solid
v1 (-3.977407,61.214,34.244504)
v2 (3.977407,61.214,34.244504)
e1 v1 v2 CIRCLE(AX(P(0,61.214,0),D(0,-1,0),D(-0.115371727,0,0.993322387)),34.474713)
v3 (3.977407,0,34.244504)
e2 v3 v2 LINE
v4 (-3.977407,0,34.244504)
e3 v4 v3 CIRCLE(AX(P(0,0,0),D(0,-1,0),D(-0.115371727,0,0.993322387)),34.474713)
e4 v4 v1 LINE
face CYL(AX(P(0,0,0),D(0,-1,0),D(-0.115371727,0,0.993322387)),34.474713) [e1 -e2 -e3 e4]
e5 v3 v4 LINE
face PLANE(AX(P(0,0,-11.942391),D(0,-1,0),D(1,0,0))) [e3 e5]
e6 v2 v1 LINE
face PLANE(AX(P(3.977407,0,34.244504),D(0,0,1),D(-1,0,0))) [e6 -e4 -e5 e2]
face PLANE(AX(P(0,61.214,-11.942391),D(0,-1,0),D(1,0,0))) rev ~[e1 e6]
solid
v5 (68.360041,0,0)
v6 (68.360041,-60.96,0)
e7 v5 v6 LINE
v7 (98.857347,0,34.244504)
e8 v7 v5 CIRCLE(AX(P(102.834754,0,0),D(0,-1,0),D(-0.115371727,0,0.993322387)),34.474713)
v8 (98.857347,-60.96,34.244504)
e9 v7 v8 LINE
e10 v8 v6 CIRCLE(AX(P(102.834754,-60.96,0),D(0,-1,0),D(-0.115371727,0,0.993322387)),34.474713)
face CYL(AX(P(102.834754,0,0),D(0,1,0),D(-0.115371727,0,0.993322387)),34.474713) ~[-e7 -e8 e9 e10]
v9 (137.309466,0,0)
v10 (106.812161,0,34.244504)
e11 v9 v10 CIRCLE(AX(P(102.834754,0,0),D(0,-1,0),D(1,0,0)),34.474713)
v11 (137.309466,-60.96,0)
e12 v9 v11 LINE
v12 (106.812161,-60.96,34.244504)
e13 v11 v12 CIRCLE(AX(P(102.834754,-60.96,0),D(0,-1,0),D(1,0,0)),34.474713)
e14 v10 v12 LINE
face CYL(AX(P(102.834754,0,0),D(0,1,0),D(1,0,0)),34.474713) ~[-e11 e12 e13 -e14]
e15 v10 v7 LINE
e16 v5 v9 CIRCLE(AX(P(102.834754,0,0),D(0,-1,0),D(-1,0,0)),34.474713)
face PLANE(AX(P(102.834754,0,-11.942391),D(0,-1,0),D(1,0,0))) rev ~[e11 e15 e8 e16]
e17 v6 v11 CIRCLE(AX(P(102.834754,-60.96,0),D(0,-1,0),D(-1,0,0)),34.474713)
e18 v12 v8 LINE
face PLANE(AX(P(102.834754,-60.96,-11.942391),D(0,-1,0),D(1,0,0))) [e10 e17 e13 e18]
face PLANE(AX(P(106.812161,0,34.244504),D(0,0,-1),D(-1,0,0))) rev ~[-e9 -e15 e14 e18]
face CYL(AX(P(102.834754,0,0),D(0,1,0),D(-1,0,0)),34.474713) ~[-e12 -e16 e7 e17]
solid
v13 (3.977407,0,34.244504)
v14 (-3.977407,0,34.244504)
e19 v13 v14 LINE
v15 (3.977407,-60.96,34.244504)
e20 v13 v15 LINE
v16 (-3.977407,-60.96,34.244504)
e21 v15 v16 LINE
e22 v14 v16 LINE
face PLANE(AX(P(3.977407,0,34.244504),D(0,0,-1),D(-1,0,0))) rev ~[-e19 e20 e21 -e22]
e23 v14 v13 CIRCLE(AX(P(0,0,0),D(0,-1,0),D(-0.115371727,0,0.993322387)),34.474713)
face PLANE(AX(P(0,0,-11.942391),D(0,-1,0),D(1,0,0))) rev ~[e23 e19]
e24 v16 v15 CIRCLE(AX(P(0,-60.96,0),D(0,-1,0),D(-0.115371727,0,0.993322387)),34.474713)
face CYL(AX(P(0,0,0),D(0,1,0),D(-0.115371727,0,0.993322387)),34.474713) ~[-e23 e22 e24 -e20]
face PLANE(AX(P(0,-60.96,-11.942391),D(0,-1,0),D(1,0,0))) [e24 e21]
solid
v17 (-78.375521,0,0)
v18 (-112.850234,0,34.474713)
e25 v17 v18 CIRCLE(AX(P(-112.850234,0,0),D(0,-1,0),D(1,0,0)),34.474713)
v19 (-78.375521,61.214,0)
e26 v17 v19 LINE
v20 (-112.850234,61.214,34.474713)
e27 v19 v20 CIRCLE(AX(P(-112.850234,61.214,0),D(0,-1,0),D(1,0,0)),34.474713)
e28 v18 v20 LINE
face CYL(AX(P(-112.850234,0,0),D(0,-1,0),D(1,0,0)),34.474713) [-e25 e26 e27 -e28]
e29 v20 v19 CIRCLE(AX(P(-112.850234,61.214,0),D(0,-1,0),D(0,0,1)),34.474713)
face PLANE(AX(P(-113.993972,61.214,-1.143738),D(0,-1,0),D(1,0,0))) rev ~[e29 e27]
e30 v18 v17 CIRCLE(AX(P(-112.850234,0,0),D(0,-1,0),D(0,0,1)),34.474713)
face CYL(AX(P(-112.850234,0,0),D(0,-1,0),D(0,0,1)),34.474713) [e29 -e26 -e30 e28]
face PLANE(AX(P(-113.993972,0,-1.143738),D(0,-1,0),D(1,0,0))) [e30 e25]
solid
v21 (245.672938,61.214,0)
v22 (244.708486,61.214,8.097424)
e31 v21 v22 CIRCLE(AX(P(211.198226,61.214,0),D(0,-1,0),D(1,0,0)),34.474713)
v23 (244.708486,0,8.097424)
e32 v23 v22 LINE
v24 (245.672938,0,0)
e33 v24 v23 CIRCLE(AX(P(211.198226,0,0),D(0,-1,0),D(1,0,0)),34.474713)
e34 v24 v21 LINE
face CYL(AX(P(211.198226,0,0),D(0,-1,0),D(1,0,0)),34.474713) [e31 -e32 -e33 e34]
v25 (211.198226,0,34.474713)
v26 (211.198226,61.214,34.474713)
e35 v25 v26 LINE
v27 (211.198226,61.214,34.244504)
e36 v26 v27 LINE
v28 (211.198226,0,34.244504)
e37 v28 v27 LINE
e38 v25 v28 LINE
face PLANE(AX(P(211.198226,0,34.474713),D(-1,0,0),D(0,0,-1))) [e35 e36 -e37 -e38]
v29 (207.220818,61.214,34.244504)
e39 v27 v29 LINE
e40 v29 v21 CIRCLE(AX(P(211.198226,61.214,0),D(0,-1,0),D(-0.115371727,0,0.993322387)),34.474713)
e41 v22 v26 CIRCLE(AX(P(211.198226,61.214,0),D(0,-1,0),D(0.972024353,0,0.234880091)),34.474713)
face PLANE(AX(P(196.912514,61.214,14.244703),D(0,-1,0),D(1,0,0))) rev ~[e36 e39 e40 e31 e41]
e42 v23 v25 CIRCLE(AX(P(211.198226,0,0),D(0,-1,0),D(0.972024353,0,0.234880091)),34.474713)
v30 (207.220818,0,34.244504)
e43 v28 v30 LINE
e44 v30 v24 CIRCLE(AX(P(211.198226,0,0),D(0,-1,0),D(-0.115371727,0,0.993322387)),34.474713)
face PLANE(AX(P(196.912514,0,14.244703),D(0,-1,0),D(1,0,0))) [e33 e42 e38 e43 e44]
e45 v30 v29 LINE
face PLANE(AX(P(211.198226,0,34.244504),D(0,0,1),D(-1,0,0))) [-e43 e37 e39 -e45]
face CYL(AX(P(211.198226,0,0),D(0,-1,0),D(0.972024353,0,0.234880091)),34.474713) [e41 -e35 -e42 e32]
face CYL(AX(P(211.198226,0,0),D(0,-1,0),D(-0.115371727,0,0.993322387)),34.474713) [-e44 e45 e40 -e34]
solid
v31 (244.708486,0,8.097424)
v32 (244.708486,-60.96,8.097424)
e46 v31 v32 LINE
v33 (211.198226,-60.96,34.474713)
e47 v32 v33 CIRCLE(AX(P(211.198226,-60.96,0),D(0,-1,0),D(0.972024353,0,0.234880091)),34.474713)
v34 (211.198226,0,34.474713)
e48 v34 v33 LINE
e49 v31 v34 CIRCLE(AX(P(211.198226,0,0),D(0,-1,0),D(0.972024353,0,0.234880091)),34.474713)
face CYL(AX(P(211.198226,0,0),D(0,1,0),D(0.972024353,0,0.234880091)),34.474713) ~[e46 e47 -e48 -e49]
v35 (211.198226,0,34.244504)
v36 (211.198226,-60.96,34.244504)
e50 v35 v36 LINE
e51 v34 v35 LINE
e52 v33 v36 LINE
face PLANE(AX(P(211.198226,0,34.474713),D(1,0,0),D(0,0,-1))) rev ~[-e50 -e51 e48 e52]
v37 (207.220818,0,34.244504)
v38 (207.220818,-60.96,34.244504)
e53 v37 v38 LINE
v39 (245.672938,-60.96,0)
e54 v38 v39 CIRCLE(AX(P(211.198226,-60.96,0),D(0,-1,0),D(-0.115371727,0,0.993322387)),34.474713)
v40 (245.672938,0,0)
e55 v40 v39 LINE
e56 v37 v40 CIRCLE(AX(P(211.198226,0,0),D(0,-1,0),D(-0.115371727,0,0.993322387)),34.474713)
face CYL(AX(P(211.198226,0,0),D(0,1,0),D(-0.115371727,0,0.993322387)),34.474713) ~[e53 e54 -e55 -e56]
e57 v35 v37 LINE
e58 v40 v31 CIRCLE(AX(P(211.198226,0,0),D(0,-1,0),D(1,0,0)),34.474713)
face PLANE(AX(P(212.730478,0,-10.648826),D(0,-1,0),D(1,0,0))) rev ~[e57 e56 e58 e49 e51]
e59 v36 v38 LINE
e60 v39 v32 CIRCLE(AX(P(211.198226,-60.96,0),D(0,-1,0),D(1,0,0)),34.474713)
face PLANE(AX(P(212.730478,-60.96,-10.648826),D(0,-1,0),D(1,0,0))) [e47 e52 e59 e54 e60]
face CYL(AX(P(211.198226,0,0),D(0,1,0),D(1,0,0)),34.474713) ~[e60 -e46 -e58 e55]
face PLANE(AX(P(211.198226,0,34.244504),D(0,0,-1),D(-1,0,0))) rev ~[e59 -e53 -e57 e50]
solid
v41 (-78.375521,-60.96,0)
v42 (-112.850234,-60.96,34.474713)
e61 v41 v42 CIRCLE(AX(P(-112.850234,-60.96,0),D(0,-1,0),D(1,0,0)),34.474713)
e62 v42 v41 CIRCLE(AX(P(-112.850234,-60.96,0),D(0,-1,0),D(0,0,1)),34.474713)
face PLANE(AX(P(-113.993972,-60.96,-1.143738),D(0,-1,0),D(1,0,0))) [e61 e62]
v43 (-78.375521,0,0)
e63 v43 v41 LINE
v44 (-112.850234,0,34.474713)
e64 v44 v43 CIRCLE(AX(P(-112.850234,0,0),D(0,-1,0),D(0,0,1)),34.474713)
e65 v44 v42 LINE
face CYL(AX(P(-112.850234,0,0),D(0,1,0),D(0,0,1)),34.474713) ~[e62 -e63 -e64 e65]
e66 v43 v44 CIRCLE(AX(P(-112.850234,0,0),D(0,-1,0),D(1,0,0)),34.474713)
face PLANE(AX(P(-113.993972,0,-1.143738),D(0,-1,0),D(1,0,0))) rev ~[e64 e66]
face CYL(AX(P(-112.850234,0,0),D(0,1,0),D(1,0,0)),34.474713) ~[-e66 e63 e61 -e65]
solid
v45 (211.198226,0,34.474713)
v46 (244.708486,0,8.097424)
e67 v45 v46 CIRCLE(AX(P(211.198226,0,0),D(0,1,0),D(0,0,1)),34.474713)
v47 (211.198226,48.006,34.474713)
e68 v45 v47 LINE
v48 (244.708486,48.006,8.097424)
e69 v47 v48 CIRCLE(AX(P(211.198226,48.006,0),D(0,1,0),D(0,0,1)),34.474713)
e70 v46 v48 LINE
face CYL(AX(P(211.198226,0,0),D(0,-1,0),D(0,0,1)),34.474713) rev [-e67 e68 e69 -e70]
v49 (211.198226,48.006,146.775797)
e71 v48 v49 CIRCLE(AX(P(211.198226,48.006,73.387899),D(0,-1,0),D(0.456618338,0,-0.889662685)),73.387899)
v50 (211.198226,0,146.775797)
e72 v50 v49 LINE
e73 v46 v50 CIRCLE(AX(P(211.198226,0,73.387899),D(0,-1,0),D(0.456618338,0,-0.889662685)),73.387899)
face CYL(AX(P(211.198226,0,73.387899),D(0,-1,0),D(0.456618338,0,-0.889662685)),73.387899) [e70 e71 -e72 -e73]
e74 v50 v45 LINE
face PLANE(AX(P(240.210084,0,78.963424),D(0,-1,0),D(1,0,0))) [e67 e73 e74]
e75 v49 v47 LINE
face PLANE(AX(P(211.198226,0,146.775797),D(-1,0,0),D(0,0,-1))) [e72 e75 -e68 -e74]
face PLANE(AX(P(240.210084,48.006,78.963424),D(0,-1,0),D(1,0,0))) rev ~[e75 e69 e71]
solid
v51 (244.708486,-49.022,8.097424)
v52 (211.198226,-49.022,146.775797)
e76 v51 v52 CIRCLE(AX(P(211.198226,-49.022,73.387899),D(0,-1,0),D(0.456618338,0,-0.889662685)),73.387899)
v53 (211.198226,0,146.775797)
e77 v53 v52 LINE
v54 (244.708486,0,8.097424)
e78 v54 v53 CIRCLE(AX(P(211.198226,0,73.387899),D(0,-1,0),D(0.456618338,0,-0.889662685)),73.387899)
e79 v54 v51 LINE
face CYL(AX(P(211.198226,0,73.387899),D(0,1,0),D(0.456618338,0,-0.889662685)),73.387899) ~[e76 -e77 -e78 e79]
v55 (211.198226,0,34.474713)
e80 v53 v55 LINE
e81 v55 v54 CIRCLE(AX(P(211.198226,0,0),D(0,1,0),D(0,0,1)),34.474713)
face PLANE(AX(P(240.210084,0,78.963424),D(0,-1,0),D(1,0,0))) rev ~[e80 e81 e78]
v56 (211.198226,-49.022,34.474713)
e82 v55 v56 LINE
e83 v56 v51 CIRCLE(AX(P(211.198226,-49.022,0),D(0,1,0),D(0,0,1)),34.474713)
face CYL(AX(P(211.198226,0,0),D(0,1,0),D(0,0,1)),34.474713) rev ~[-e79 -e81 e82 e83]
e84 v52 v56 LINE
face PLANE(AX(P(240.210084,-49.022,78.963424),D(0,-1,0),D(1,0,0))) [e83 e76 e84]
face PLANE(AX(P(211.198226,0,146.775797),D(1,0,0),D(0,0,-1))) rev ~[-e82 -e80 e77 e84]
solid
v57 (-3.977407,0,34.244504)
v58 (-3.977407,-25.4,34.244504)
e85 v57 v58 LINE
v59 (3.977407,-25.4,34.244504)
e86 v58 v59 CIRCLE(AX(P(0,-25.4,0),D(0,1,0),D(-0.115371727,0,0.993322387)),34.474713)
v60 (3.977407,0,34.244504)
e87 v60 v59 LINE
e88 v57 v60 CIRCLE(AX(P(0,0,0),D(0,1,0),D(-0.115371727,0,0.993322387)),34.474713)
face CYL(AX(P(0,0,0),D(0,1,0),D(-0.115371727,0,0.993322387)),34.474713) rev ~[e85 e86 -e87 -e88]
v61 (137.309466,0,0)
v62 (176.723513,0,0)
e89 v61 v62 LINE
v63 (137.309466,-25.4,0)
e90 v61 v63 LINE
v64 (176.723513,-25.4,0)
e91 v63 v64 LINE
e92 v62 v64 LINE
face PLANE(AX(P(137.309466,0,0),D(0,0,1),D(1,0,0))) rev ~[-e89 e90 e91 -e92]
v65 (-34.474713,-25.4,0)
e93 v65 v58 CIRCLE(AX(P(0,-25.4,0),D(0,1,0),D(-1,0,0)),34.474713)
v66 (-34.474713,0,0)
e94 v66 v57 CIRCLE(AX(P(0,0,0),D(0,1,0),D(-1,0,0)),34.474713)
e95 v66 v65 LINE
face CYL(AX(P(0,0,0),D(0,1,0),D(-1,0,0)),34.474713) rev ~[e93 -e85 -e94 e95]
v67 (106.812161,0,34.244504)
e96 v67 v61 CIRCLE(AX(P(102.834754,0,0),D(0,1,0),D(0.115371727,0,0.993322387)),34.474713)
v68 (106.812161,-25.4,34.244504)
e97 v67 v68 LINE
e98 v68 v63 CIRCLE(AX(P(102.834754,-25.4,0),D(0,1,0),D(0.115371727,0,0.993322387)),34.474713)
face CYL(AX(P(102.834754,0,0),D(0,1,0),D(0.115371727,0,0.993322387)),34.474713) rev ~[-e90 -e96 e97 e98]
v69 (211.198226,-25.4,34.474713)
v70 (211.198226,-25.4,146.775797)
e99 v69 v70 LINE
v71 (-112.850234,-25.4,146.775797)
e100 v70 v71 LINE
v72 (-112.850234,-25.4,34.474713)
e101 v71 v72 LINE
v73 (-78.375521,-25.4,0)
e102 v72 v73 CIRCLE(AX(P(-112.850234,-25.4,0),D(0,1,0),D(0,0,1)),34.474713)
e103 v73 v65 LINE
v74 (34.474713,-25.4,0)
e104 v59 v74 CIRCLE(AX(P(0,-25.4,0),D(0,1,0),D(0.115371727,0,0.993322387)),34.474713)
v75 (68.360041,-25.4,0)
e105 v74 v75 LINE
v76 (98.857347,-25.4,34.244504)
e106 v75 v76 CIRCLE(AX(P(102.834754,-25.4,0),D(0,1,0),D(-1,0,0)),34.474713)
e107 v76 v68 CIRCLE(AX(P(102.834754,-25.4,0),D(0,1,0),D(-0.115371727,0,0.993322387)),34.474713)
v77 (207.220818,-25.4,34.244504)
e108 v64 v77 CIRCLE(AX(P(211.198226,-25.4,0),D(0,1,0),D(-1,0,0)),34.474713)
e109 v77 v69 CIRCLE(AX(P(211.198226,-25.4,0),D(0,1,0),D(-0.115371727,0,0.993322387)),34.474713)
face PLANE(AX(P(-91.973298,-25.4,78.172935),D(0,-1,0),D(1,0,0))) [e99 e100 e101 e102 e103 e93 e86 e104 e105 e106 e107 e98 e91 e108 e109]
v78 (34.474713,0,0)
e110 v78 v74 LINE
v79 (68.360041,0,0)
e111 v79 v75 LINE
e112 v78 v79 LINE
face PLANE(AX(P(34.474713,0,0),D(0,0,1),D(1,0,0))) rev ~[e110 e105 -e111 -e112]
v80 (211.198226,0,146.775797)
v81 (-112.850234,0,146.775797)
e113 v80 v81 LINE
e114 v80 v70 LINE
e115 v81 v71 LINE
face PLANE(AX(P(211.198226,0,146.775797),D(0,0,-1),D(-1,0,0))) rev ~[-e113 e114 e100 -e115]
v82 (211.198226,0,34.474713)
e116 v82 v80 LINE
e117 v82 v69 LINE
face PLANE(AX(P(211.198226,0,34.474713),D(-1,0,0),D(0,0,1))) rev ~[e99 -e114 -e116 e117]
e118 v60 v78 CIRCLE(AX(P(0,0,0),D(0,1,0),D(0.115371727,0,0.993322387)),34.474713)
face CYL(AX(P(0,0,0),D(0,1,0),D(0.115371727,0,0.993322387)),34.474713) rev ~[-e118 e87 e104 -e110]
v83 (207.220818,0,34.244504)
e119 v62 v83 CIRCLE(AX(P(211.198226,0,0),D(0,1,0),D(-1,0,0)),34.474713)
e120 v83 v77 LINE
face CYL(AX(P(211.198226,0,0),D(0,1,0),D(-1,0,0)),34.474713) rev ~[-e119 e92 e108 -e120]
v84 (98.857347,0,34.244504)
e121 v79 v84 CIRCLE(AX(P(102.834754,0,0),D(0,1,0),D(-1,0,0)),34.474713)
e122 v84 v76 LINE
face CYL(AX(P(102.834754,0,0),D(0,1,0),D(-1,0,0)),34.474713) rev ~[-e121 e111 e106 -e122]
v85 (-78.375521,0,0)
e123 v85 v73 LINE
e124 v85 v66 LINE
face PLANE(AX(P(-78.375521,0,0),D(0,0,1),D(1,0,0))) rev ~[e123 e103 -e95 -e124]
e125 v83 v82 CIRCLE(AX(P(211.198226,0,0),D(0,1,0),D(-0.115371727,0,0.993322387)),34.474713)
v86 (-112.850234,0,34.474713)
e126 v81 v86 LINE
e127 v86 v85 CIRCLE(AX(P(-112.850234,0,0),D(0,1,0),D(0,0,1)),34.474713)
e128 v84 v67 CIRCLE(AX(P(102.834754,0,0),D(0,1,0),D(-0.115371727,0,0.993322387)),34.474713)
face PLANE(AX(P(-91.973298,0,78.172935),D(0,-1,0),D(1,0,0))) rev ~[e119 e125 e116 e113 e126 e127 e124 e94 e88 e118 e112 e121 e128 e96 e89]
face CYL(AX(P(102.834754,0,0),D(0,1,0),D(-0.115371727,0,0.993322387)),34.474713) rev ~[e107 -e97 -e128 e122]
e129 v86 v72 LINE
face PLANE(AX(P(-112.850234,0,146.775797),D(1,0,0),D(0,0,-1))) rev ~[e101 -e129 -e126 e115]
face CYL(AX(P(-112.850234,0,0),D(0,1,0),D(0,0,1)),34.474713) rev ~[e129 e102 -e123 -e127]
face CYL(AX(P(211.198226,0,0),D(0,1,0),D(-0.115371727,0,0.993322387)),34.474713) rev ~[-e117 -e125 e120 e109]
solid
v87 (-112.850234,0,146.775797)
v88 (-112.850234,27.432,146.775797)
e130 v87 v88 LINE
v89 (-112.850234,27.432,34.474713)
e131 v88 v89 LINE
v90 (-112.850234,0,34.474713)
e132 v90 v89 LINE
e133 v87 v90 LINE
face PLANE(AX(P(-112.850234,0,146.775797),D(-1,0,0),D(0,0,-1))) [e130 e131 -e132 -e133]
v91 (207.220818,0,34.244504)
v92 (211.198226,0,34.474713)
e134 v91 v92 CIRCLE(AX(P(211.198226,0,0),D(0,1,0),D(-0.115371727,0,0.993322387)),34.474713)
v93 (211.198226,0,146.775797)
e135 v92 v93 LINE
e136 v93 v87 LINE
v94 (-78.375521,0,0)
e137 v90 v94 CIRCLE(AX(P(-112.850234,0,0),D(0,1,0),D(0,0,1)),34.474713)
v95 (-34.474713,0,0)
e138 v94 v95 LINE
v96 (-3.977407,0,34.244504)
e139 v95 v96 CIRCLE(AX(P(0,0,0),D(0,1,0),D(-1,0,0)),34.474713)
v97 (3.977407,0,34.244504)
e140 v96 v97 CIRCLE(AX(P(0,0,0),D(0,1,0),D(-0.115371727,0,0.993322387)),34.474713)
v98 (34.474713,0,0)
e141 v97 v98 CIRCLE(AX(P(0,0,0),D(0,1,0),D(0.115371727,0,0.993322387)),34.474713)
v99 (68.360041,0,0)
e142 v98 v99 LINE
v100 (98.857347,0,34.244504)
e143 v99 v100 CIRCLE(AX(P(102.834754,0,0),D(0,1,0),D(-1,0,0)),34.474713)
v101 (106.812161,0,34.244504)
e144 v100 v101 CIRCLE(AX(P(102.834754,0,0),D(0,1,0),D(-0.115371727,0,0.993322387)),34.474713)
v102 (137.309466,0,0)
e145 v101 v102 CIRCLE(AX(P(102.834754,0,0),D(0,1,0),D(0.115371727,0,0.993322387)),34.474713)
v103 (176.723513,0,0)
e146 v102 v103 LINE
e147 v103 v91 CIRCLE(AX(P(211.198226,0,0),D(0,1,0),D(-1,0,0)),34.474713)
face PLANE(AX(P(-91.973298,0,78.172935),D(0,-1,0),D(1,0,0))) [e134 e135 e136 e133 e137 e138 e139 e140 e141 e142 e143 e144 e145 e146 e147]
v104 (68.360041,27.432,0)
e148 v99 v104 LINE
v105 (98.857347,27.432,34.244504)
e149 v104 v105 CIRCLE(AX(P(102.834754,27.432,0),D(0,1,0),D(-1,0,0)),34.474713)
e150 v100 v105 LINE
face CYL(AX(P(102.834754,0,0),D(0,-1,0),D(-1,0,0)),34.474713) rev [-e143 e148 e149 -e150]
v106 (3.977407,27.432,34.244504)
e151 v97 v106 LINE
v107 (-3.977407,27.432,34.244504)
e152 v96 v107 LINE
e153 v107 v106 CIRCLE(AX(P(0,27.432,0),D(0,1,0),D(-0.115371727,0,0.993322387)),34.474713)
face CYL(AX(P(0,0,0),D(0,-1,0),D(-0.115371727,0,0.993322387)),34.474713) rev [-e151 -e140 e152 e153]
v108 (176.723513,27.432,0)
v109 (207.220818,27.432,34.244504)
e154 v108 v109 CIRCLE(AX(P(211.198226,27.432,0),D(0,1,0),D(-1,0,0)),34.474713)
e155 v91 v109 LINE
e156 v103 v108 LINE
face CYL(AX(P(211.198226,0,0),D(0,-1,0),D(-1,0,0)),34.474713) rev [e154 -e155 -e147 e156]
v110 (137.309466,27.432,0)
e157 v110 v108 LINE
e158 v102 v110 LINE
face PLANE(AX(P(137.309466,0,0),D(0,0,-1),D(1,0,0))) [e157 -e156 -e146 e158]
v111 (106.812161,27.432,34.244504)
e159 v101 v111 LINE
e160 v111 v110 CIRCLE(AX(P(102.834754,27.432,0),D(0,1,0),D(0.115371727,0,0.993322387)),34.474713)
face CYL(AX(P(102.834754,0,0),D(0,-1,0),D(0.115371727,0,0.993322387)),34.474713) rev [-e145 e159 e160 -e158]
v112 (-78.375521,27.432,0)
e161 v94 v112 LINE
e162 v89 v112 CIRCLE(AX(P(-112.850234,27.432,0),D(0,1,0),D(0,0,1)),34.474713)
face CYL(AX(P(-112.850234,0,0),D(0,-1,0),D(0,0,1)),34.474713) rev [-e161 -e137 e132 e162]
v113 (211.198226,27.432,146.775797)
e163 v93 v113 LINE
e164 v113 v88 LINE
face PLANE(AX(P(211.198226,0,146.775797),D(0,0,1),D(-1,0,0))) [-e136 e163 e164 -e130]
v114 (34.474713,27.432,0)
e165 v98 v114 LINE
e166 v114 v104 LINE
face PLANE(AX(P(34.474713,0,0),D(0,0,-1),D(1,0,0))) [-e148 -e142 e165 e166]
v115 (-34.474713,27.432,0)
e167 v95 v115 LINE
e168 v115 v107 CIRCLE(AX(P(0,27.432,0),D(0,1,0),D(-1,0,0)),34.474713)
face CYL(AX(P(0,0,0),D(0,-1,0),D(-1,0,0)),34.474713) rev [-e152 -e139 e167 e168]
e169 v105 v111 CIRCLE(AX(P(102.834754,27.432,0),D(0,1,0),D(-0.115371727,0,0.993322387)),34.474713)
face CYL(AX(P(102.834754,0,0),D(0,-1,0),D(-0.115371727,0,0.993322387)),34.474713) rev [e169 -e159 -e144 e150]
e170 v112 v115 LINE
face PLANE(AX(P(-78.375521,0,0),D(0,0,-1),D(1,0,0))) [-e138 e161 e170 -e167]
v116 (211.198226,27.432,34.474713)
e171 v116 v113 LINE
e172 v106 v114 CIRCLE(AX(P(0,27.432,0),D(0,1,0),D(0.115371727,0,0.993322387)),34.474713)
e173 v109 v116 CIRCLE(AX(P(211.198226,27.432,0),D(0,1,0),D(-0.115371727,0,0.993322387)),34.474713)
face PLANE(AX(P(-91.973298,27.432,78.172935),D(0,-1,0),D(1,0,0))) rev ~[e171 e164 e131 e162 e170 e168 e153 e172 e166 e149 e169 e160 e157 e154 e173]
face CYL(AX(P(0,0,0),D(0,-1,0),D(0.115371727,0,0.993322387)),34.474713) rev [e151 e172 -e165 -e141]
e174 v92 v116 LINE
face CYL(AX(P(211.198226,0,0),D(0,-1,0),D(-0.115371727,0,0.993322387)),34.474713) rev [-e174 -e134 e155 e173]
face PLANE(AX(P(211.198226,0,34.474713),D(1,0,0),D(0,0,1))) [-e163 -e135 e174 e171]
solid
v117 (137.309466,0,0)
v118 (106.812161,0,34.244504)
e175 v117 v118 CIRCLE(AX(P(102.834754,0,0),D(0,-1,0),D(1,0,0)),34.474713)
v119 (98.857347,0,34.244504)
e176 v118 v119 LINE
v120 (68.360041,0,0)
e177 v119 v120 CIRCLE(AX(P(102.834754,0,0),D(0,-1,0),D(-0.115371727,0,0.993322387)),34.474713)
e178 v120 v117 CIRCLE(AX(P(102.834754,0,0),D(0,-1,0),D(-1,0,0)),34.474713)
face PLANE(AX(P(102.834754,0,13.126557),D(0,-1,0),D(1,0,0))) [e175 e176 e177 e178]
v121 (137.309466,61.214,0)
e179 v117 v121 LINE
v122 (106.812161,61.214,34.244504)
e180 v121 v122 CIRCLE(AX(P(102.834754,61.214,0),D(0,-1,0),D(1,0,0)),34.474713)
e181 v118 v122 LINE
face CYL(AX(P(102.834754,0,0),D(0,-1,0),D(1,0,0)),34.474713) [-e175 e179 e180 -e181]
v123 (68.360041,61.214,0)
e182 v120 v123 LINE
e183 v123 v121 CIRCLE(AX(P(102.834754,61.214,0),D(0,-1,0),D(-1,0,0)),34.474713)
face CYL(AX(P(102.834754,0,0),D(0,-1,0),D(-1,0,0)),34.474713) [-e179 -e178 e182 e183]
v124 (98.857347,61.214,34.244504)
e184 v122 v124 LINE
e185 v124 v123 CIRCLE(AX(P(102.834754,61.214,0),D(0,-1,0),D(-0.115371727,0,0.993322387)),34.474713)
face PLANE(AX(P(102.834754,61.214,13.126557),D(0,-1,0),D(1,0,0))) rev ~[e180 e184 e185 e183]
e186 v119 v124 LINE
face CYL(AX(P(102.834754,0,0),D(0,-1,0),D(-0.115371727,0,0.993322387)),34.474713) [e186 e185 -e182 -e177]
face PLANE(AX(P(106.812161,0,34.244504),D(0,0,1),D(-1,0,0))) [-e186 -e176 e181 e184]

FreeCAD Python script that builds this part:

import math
import FreeCAD as App
import Part
import Sketcher
from FreeCAD import Vector
Q = App.Units.Quantity

doc = App.newDocument("Part")
body = doc.addObject("PartDesign::Body", "Body")

sketch1 = body.newObject("Sketcher::SketchObject", "Sketch")
sketch1.AttachmentSupport = (doc.getObject("XZ_Plane"), [""])
sketch1.MapMode = "FlatFace"
sketch1.addGeometry([
    Part.ArcOfCircle(Part.Circle(Vector(-113, 0, 0), Vector(0, 0, 1), 34), math.radians(90), math.radians(360)),
    Part.ArcOfCircle(Part.Circle(Vector(-113, 0, 0), Vector(0, 0, 1), 34), math.radians(0), math.radians(90)),
], False)
sketch1.addConstraint([
    Sketcher.Constraint("Tangent", 0, 1, 1, 2),
    Sketcher.Constraint("Coincident", 1, 1, 0, 2),
    Sketcher.Constraint("PointOnObject", 0, 3, -1),
    Sketcher.Constraint("PointOnObject", 1, 1, -1),
    Sketcher.Constraint("Vertical", 1, 3, 0, 1),
    Sketcher.Constraint("Radius", 0, 34.474713),
    Sketcher.Constraint("DistanceX", 1, 1, -1, 1, 78.375521),
])
pad1 = body.newObject("PartDesign::Pad", "Pad")
pad1.Profile = sketch1
pad1.Length = Q("2.4 in")
body2 = doc.addObject("PartDesign::Body", "Body001")

sketch2 = body2.newObject("Sketcher::SketchObject", "Sketch001")
sketch2.AttachmentSupport = (doc.getObject("XZ_Plane001"), [""])
sketch2.MapMode = "FlatFace"
sketch2.addGeometry([
    Part.LineSegment(Vector(4, 34, 0), Vector(-4, 34, 0)),
    Part.ArcOfCircle(Part.Circle(Vector(0, 0, 0), Vector(0, 0, 1), 34), math.radians(97), math.radians(443)),
], False)
sketch2.addConstraint([
    Sketcher.Constraint("Coincident", 0, 1, 1, 2),
    Sketcher.Constraint("Coincident", 1, 1, 0, 2),
    Sketcher.Constraint("Horizontal", 0),
    Sketcher.Constraint("Coincident", 1, 3, -1, 1),
    Sketcher.Constraint("Radius", 1, 34.474713),
    Sketcher.Constraint("DistanceX", 0, 2, 0, 1, 7.954814),
])
pad2 = body2.newObject("PartDesign::Pad", "Pad001")
pad2.Profile = sketch2
pad2.Length = Q("2.4 in")
body3 = doc.addObject("PartDesign::Body", "Body002")

sketch3 = body3.newObject("Sketcher::SketchObject", "Sketch002")
sketch3.AttachmentSupport = (doc.getObject("XZ_Plane002"), [""])
sketch3.MapMode = "FlatFace"
sketch3.addGeometry([
    Part.ArcOfCircle(Part.Circle(Vector(103, 0, 0), Vector(0, 0, 1), 34), math.radians(180), math.radians(360)),
    Part.ArcOfCircle(Part.Circle(Vector(103, 0, 0), Vector(0, 0, 1), 34), math.radians(0), math.radians(83)),
    Part.LineSegment(Vector(107, 34, 0), Vector(99, 34, 0)),
    Part.ArcOfCircle(Part.Circle(Vector(103, 0, 0), Vector(0, 0, 1), 34), math.radians(97), math.radians(180)),
], False)
sketch3.addConstraint([
    Sketcher.Constraint("Tangent", 0, 2, 1, 1),
    Sketcher.Constraint("Coincident", 1, 2, 2, 1),
    Sketcher.Constraint("Coincident", 2, 2, 3, 1),
    Sketcher.Constraint("Tangent", 3, 2, 0, 1),
    Sketcher.Constraint("Horizontal", 2),
    Sketcher.Constraint("Equal", 0, 1),
    Sketcher.Constraint("Equal", 1, 3),
    Sketcher.Constraint("PointOnObject", 0, 3, -1),
    Sketcher.Constraint("PointOnObject", 0, 2, -1),
    Sketcher.Constraint("PointOnObject", 3, 2, -1),
    Sketcher.Constraint("Radius", 0, 34.474713),
    Sketcher.Constraint("DistanceX", 2, 2, 2, 1, 7.954814),
    Sketcher.Constraint("DistanceX", -1, 1, 1, 2, 106.812161),
])
pad3 = body3.newObject("PartDesign::Pad", "Pad002")
pad3.Profile = sketch3
pad3.Length = Q("2.4 in")
body4 = doc.addObject("PartDesign::Body", "Body003")

sketch4 = body4.newObject("Sketcher::SketchObject", "Sketch003")
sketch4.AttachmentSupport = (doc.getObject("XZ_Plane003"), [""])
sketch4.MapMode = "FlatFace"
sketch4.addGeometry([
    Part.ArcOfCircle(Part.Circle(Vector(211.2, 0, 0), Vector(0, 0, 1), 34.47), math.radians(0), math.radians(13.58)),
    Part.ArcOfCircle(Part.Circle(Vector(211.2, 0, 0), Vector(0, 0, 1), 34.47), math.radians(14), math.radians(90)),
    Part.LineSegment(Vector(211.2, 34.47, 0), Vector(211.2, 34.24, 0)),
    Part.LineSegment(Vector(211.2, 34.24, 0), Vector(207.22, 34.24, 0)),
    Part.ArcOfCircle(Part.Circle(Vector(211.2, 0, 0), Vector(0, 0, 1), 34.47), math.radians(97), math.radians(360)),
], False)
sketch4.addConstraint([
    Sketcher.Constraint("Tangent", 0, 2, 1, 1),
    Sketcher.Constraint("Coincident", 1, 2, 2, 1),
    Sketcher.Constraint("Coincident", 2, 2, 3, 1),
    Sketcher.Constraint("Coincident", 3, 2, 4, 1),
    Sketcher.Constraint("Tangent", 4, 2, 0, 1),
    Sketcher.Constraint("Vertical", 2),
    Sketcher.Constraint("Horizontal", 3),
    Sketcher.Constraint("Equal", 0, 1),
    Sketcher.Constraint("Equal", 1, 4),
    Sketcher.Constraint("PointOnObject", 0, 3, -1),
    Sketcher.Constraint("PointOnObject", 4, 2, -1),
    Sketcher.Constraint("Vertical", 4, 3, 1, 2),
    Sketcher.Constraint("DistanceX", -1, 1, 3, 2, Q("8.1582999 in")),
    Sketcher.Constraint("Radius", 0, 34.474713),
    Sketcher.Constraint("DistanceY", 2, 2, 2, 1, 0.230209),
    Sketcher.Constraint("DistanceX", 0, 3, 0, 2, 33.51026),
])
pad4 = body4.newObject("PartDesign::Pad", "Pad003")
pad4.Profile = sketch4
pad4.Length = Q("2.4 in")
body5 = doc.addObject("PartDesign::Body", "Body004")

sketch5 = body5.newObject("Sketcher::SketchObject", "Sketch004")
sketch5.AttachmentSupport = (doc.getObject("XZ_Plane004"), [""])
sketch5.MapMode = "FlatFace"
sketch5.addGeometry([
    Part.ArcOfCircle(Part.Circle(Vector(-113, 0, 0), Vector(0, 0, 1), 34), math.radians(90), math.radians(360)),
    Part.ArcOfCircle(Part.Circle(Vector(-113, 0, 0), Vector(0, 0, 1), 34), math.radians(0), math.radians(90)),
], False)
sketch5.addConstraint([
    Sketcher.Constraint("Tangent", 0, 1, 1, 2),
    Sketcher.Constraint("Coincident", 1, 1, 0, 2),
    Sketcher.Constraint("PointOnObject", 0, 3, -1),
    Sketcher.Constraint("PointOnObject", 1, 1, -1),
    Sketcher.Constraint("Vertical", 1, 3, 0, 1),
    Sketcher.Constraint("Radius", 0, 34.474713),
    Sketcher.Constraint("DistanceX", 1, 1, -1, 1, 78.375521),
])
pad5 = body5.newObject("PartDesign::Pad", "Pad004")
pad5.Profile = sketch5
pad5.Length = Q("2.41 in")
pad5.Reversed = True
body6 = doc.addObject("PartDesign::Body", "Body005")

sketch6 = body6.newObject("Sketcher::SketchObject", "Sketch005")
sketch6.AttachmentSupport = (doc.getObject("XZ_Plane005"), [""])
sketch6.MapMode = "FlatFace"
sketch6.addGeometry([
    Part.LineSegment(Vector(4, 34, 0), Vector(-4, 34, 0)),
    Part.ArcOfCircle(Part.Circle(Vector(0, 0, 0), Vector(0, 0, 1), 34), math.radians(97), math.radians(443)),
], False)
sketch6.addConstraint([
    Sketcher.Constraint("Coincident", 0, 1, 1, 2),
    Sketcher.Constraint("Coincident", 1, 1, 0, 2),
    Sketcher.Constraint("Horizontal", 0),
    Sketcher.Constraint("Coincident", 1, 3, -1, 1),
    Sketcher.Constraint("Radius", 1, 34.474713),
    Sketcher.Constraint("DistanceX", 0, 2, 0, 1, 7.954814),
])
pad6 = body6.newObject("PartDesign::Pad", "Pad005")
pad6.Profile = sketch6
pad6.Length = Q("2.41 in")
pad6.Reversed = True
body7 = doc.addObject("PartDesign::Body", "Body006")

sketch7 = body7.newObject("Sketcher::SketchObject", "Sketch006")
sketch7.AttachmentSupport = (doc.getObject("XZ_Plane006"), [""])
sketch7.MapMode = "FlatFace"
sketch7.addGeometry([
    Part.ArcOfCircle(Part.Circle(Vector(103, 0, 0), Vector(0, 0, 1), 34), math.radians(97), math.radians(180)),
    Part.ArcOfCircle(Part.Circle(Vector(103, 0, 0), Vector(0, 0, 1), 34), math.radians(180), math.radians(360)),
    Part.ArcOfCircle(Part.Circle(Vector(103, 0, 0), Vector(0, 0, 1), 34), math.radians(0), math.radians(83)),
    Part.LineSegment(Vector(107, 34, 0), Vector(99, 34, 0)),
], False)
sketch7.addConstraint([
    Sketcher.Constraint("Tangent", 0, 2, 1, 1),
    Sketcher.Constraint("Tangent", 1, 2, 2, 1),
    Sketcher.Constraint("Coincident", 2, 2, 3, 1),
    Sketcher.Constraint("Coincident", 3, 2, 0, 1),
    Sketcher.Constraint("Horizontal", 3),
    Sketcher.Constraint("Equal", 0, 1),
    Sketcher.Constraint("Equal", 1, 2),
    Sketcher.Constraint("PointOnObject", 0, 3, -1),
    Sketcher.Constraint("PointOnObject", 0, 2, -1),
    Sketcher.Constraint("PointOnObject", 1, 2, -1),
    Sketcher.Constraint("Radius", 0, 34.474713),
    Sketcher.Constraint("DistanceX", 3, 2, 3, 1, 7.954814),
    Sketcher.Constraint("DistanceX", -1, 1, 0, 2, 68.360041),
])
pad7 = body7.newObject("PartDesign::Pad", "Pad006")
pad7.Profile = sketch7
pad7.Length = Q("2.41 in")
pad7.Reversed = True
body8 = doc.addObject("PartDesign::Body", "Body007")

sketch8 = body8.newObject("Sketcher::SketchObject", "Sketch007")
sketch8.AttachmentSupport = (doc.getObject("XZ_Plane007"), [""])
sketch8.MapMode = "FlatFace"
sketch8.addGeometry([
    Part.ArcOfCircle(Part.Circle(Vector(211.2, 0, 0), Vector(0, 0, 1), 34.47), math.radians(97), math.radians(360)),
    Part.ArcOfCircle(Part.Circle(Vector(211.2, 0, 0), Vector(0, 0, 1), 34.47), math.radians(0), math.radians(13.58)),
    Part.ArcOfCircle(Part.Circle(Vector(211.2, 0, 0), Vector(0, 0, 1), 34.47), math.radians(14), math.radians(90)),
    Part.LineSegment(Vector(211.2, 34.47, 0), Vector(211.2, 34.24, 0)),
    Part.LineSegment(Vector(211.2, 34.24, 0), Vector(207.22, 34.24, 0)),
], False)
sketch8.addConstraint([
    Sketcher.Constraint("Tangent", 0, 2, 1, 1),
    Sketcher.Constraint("Tangent", 1, 2, 2, 1),
    Sketcher.Constraint("Coincident", 2, 2, 3, 1),
    Sketcher.Constraint("Coincident", 3, 2, 4, 1),
    Sketcher.Constraint("Coincident", 4, 2, 0, 1),
    Sketcher.Constraint("Vertical", 3),
    Sketcher.Constraint("Horizontal", 4),
    Sketcher.Constraint("Coincident", 2, 3, 0, 3),
    Sketcher.Constraint("PointOnObject", 0, 3, -1),
    Sketcher.Constraint("PointOnObject", 0, 2, -1),
    Sketcher.Constraint("Vertical", 1, 3, 2, 2),
    Sketcher.Constraint("DistanceX", -1, 1, 4, 2, Q("8.1582999 in")),
    Sketcher.Constraint("Radius", 0, 34.474713),
    Sketcher.Constraint("DistanceY", 3, 2, 3, 1, 0.230209),
    Sketcher.Constraint("DistanceX", 1, 3, 1, 2, 33.51026),
])
pad8 = body8.newObject("PartDesign::Pad", "Pad007")
pad8.Profile = sketch8
pad8.Length = Q("2.41 in")
pad8.Reversed = True
body9 = doc.addObject("PartDesign::Body", "Body008")

sketch9 = body9.newObject("Sketcher::SketchObject", "Sketch008")
sketch9.AttachmentSupport = (doc.getObject("XZ_Plane008"), [""])
sketch9.MapMode = "FlatFace"
sketch9.addGeometry([
    Part.LineSegment(Vector(-78.4, 0, 0), Vector(-34.5, 0, 0)),
    Part.ArcOfCircle(Part.Circle(Vector(0, 0, 0), Vector(0, 0, 1), 34.5), math.radians(97), math.radians(180)),
    Part.ArcOfCircle(Part.Circle(Vector(0, 0, 0), Vector(0, 0, 1), 34.5), math.radians(83.37), math.radians(96.63)),
    Part.ArcOfCircle(Part.Circle(Vector(0, 0, 0), Vector(0, 0, 1), 34.5), math.radians(0), math.radians(83)),
    Part.LineSegment(Vector(34.5, 0, 0), Vector(68.4, 0, 0)),
    Part.ArcOfCircle(Part.Circle(Vector(102.8, 0, 0), Vector(0, 0, 1), 34.5), math.radians(97), math.radians(180)),
    Part.ArcOfCircle(Part.Circle(Vector(102.8, 0, 0), Vector(0, 0, 1), 34.5), math.radians(83.37), math.radians(96.63)),
    Part.ArcOfCircle(Part.Circle(Vector(102.8, 0, 0), Vector(0, 0, 1), 34.5), math.radians(0), math.radians(83)),
    Part.LineSegment(Vector(137.3, 0, 0), Vector(176.7, 0, 0)),
    Part.ArcOfCircle(Part.Circle(Vector(211.2, 0, 0), Vector(0, 0, 1), 34.5), math.radians(97), math.radians(180)),
    Part.ArcOfCircle(Part.Circle(Vector(211.2, 0, 0), Vector(0, 0, 1), 34.5), math.radians(90), math.radians(96.63)),
    Part.LineSegment(Vector(211.2, 34.5, 0), Vector(211.2, 146.8, 0)),
    Part.LineSegment(Vector(211.2, 146.8, 0), Vector(-112.9, 146.8, 0)),
    Part.LineSegment(Vector(-112.9, 146.8, 0), Vector(-112.9, 34.5, 0)),
    Part.ArcOfCircle(Part.Circle(Vector(-112.9, 0, 0), Vector(0, 0, 1), 34.5), math.radians(0), math.radians(90)),
], False)
sketch9.addConstraint([
    Sketcher.Constraint("Coincident", 0, 2, 1, 2),
    Sketcher.Constraint("Tangent", 1, 1, 2, 2),
    Sketcher.Constraint("Tangent", 2, 1, 3, 2),
    Sketcher.Constraint("Coincident", 3, 1, 4, 1),
    Sketcher.Constraint("Coincident", 4, 2, 5, 2),
    Sketcher.Constraint("Tangent", 5, 1, 6, 2),
    Sketcher.Constraint("Tangent", 6, 1, 7, 2),
    Sketcher.Constraint("Coincident", 7, 1, 8, 1),
    Sketcher.Constraint("Coincident", 8, 2, 9, 2),
    Sketcher.Constraint("Tangent", 9, 1, 10, 2),
    Sketcher.Constraint("Coincident", 10, 1, 11, 1),
    Sketcher.Constraint("Coincident", 11, 2, 12, 1),
    Sketcher.Constraint("Coincident", 12, 2, 13, 1),
    Sketcher.Constraint("Coincident", 13, 2, 14, 2),
    Sketcher.Constraint("Coincident", 14, 1, 0, 1),
    Sketcher.Constraint("Horizontal", 0),
    Sketcher.Constraint("Horizontal", 4),
    Sketcher.Constraint("Horizontal", 8),
    Sketcher.Constraint("Vertical", 11),
    Sketcher.Constraint("Horizontal", 12),
    Sketcher.Constraint("Vertical", 13),
    Sketcher.Constraint("Coincident", 1, 3, -1, 1),
    Sketcher.Constraint("Coincident", 3, 3, -1, 1),
    Sketcher.Constraint("Coincident", 7, 3, 5, 3),
    Sketcher.Constraint("Equal", 3, 5),
    Sketcher.Constraint("Equal", 7, 9),
    Sketcher.Constraint("Equal", 9, 10),
    Sketcher.Constraint("Equal", 10, 14),
    Sketcher.Constraint("PointOnObject", 5, 3, -1),
    Sketcher.Constraint("PointOnObject", 9, 3, -1),
    Sketcher.Constraint("PointOnObject", 14, 3, -1),
    Sketcher.Constraint("PointOnObject", 0, 2, -1),
    Sketcher.Constraint("PointOnObject", 3, 1, -1),
    Sketcher.Constraint("PointOnObject", 7, 1, -1),
    Sketcher.Constraint("Horizontal", 1, 1, 2, 1),
    Sketcher.Constraint("Horizontal", 2, 1, 5, 1),
    Sketcher.Constraint("Horizontal", 5, 1, 6, 1),
    Sketcher.Constraint("Horizontal", 6, 1, 9, 1),
    Sketcher.Constraint("Vertical", 9, 3, 10, 1),
    Sketcher.Constraint("Vertical", 14, 3, 12, 2),
    Sketcher.Constraint("DistanceX", -1, 1, 9, 1, Q("8.1582999 in")),
    Sketcher.Constraint("Radius", 1, 34.474713),
    Sketcher.Constraint("DistanceX", 0, 1, 0, 2, 43.900809),
    Sketcher.Constraint("DistanceX", 4, 1, 4, 2, 33.885328),
    Sketcher.Constraint("DistanceX", 12, 2, 12, 1, 324.04846),
    Sketcher.Constraint("DistanceY", 11, 1, 11, 2, 112.301084),
])
pad9 = body9.newObject("PartDesign::Pad", "Pad008")
pad9.Profile = sketch9
pad9.Length = Q("1 in")
body10 = doc.addObject("PartDesign::Body", "Body009")

sketch10 = body10.newObject("Sketcher::SketchObject", "Sketch009")
sketch10.AttachmentSupport = (doc.getObject("XZ_Plane009"), [""])
sketch10.MapMode = "FlatFace"
sketch10.addGeometry([
    Part.LineSegment(Vector(-78.4, 0, 0), Vector(-34.5, 0, 0)),
    Part.ArcOfCircle(Part.Circle(Vector(0, 0, 0), Vector(0, 0, 1), 34.5), math.radians(97), math.radians(180)),
    Part.ArcOfCircle(Part.Circle(Vector(0, 0, 0), Vector(0, 0, 1), 34.5), math.radians(83.37), math.radians(96.63)),
    Part.ArcOfCircle(Part.Circle(Vector(0, 0, 0), Vector(0, 0, 1), 34.5), math.radians(0), math.radians(83)),
    Part.LineSegment(Vector(34.5, 0, 0), Vector(68.4, 0, 0)),
    Part.ArcOfCircle(Part.Circle(Vector(102.8, 0, 0), Vector(0, 0, 1), 34.5), math.radians(97), math.radians(180)),
    Part.ArcOfCircle(Part.Circle(Vector(102.8, 0, 0), Vector(0, 0, 1), 34.5), math.radians(83.37), math.radians(96.63)),
    Part.ArcOfCircle(Part.Circle(Vector(102.8, 0, 0), Vector(0, 0, 1), 34.5), math.radians(0), math.radians(83)),
    Part.LineSegment(Vector(137.3, 0, 0), Vector(176.7, 0, 0)),
    Part.ArcOfCircle(Part.Circle(Vector(211.2, 0, 0), Vector(0, 0, 1), 34.5), math.radians(97), math.radians(180)),
    Part.ArcOfCircle(Part.Circle(Vector(211.2, 0, 0), Vector(0, 0, 1), 34.5), math.radians(90), math.radians(96.63)),
    Part.LineSegment(Vector(211.2, 34.5, 0), Vector(211.2, 146.8, 0)),
    Part.LineSegment(Vector(211.2, 146.8, 0), Vector(-112.9, 146.8, 0)),
    Part.LineSegment(Vector(-112.9, 146.8, 0), Vector(-112.9, 34.5, 0)),
    Part.ArcOfCircle(Part.Circle(Vector(-112.9, 0, 0), Vector(0, 0, 1), 34.5), math.radians(0), math.radians(90)),
], False)
sketch10.addConstraint([
    Sketcher.Constraint("Coincident", 0, 2, 1, 2),
    Sketcher.Constraint("Tangent", 1, 1, 2, 2),
    Sketcher.Constraint("Tangent", 2, 1, 3, 2),
    Sketcher.Constraint("Coincident", 3, 1, 4, 1),
    Sketcher.Constraint("Coincident", 4, 2, 5, 2),
    Sketcher.Constraint("Tangent", 5, 1, 6, 2),
    Sketcher.Constraint("Tangent", 6, 1, 7, 2),
    Sketcher.Constraint("Coincident", 7, 1, 8, 1),
    Sketcher.Constraint("Coincident", 8, 2, 9, 2),
    Sketcher.Constraint("Tangent", 9, 1, 10, 2),
    Sketcher.Constraint("Coincident", 10, 1, 11, 1),
    Sketcher.Constraint("Coincident", 11, 2, 12, 1),
    Sketcher.Constraint("Coincident", 12, 2, 13, 1),
    Sketcher.Constraint("Coincident", 13, 2, 14, 2),
    Sketcher.Constraint("Coincident", 14, 1, 0, 1),
    Sketcher.Constraint("Horizontal", 0),
    Sketcher.Constraint("Horizontal", 4),
    Sketcher.Constraint("Horizontal", 8),
    Sketcher.Constraint("Vertical", 11),
    Sketcher.Constraint("Horizontal", 12),
    Sketcher.Constraint("Vertical", 13),
    Sketcher.Constraint("Coincident", 1, 3, -1, 1),
    Sketcher.Constraint("Coincident", 3, 3, -1, 1),
    Sketcher.Constraint("Coincident", 7, 3, 5, 3),
    Sketcher.Constraint("Equal", 3, 5),
    Sketcher.Constraint("Equal", 7, 9),
    Sketcher.Constraint("Equal", 9, 10),
    Sketcher.Constraint("Equal", 10, 14),
    Sketcher.Constraint("PointOnObject", 5, 3, -1),
    Sketcher.Constraint("PointOnObject", 9, 3, -1),
    Sketcher.Constraint("PointOnObject", 14, 3, -1),
    Sketcher.Constraint("PointOnObject", 0, 2, -1),
    Sketcher.Constraint("PointOnObject", 3, 1, -1),
    Sketcher.Constraint("PointOnObject", 7, 1, -1),
    Sketcher.Constraint("Horizontal", 1, 1, 2, 1),
    Sketcher.Constraint("Horizontal", 2, 1, 5, 1),
    Sketcher.Constraint("Horizontal", 5, 1, 6, 1),
    Sketcher.Constraint("Horizontal", 6, 1, 9, 1),
    Sketcher.Constraint("Vertical", 9, 3, 10, 1),
    Sketcher.Constraint("Vertical", 14, 3, 12, 2),
    Sketcher.Constraint("DistanceX", -1, 1, 9, 1, Q("8.1582999 in")),
    Sketcher.Constraint("Radius", 1, 34.474713),
    Sketcher.Constraint("DistanceX", 0, 1, 0, 2, 43.900809),
    Sketcher.Constraint("DistanceX", 4, 1, 4, 2, 33.885328),
    Sketcher.Constraint("DistanceX", 12, 2, 12, 1, 324.04846),
    Sketcher.Constraint("DistanceY", 11, 1, 11, 2, 112.301084),
])
pad10 = body10.newObject("PartDesign::Pad", "Pad009")
pad10.Profile = sketch10
pad10.Length = Q("1.08 in")
pad10.Reversed = True
body11 = doc.addObject("PartDesign::Body", "Body010")

sketch11 = body11.newObject("Sketcher::SketchObject", "Sketch010")
sketch11.AttachmentSupport = (doc.getObject("XZ_Plane010"), [""])
sketch11.MapMode = "FlatFace"
sketch11.addGeometry([
    Part.LineSegment(Vector(211, 147, 0), Vector(211, 34, 0)),
    Part.ArcOfCircle(Part.Circle(Vector(211, 0, 0), Vector(0, 0, 1), 34), math.radians(14), math.radians(90)),
    Part.ArcOfCircle(Part.Circle(Vector(211, 73, 0), Vector(0, 0, 1), 73), math.radians(-63), math.radians(90)),
], False)
sketch11.addConstraint([
    Sketcher.Constraint("Coincident", 0, 2, 1, 2),
    Sketcher.Constraint("Coincident", 1, 1, 2, 1),
    Sketcher.Constraint("Coincident", 2, 2, 0, 1),
    Sketcher.Constraint("Vertical", 0),
    Sketcher.Constraint("PointOnObject", 1, 3, -1),
    Sketcher.Constraint("Vertical", 1, 3, 2, 3),
    Sketcher.Constraint("Vertical", 2, 3, 0, 2),
    Sketcher.Constraint("Radius", 2, 73.387899),
    Sketcher.Constraint("Radius", 1, 34.474713),
    Sketcher.Constraint("DistanceY", -1, 1, 2, 3, 73.387899),
    Sketcher.Constraint("DistanceX", -1, 1, 1, 3, 211.198226),
])
pad11 = body11.newObject("PartDesign::Pad", "Pad010")
pad11.Profile = sketch11
pad11.Length = Q("1.93 in")
body12 = doc.addObject("PartDesign::Body", "Body011")

sketch12 = body12.newObject("Sketcher::SketchObject", "Sketch011")
sketch12.AttachmentSupport = (doc.getObject("XZ_Plane011"), [""])
sketch12.MapMode = "FlatFace"
sketch12.addGeometry([
    Part.LineSegment(Vector(211, 147, 0), Vector(211, 34, 0)),
    Part.ArcOfCircle(Part.Circle(Vector(211, 0, 0), Vector(0, 0, 1), 34), math.radians(14), math.radians(90)),
    Part.ArcOfCircle(Part.Circle(Vector(211, 73, 0), Vector(0, 0, 1), 73), math.radians(-63), math.radians(90)),
], False)
sketch12.addConstraint([
    Sketcher.Constraint("Coincident", 0, 2, 1, 2),
    Sketcher.Constraint("Coincident", 1, 1, 2, 1),
    Sketcher.Constraint("Coincident", 2, 2, 0, 1),
    Sketcher.Constraint("Vertical", 0),
    Sketcher.Constraint("PointOnObject", 1, 3, -1),
    Sketcher.Constraint("Vertical", 1, 3, 2, 3),
    Sketcher.Constraint("Vertical", 2, 3, 0, 2),
    Sketcher.Constraint("Radius", 2, 73.387899),
    Sketcher.Constraint("Radius", 1, 34.474713),
    Sketcher.Constraint("DistanceY", -1, 1, 2, 3, 73.387899),
    Sketcher.Constraint("DistanceX", -1, 1, 1, 3, 211.198226),
])
pad12 = body12.newObject("PartDesign::Pad", "Pad011")
pad12.Profile = sketch12
pad12.Length = Q("1.89 in")
pad12.Reversed = True

doc.recompute()
